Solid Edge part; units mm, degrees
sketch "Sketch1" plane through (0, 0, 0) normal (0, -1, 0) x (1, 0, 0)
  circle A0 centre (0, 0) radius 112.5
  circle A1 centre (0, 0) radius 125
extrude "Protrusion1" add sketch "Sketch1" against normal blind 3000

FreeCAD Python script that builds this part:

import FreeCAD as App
import Part
import Sketcher
from FreeCAD import Vector

doc = App.newDocument("Part")
body = doc.addObject("PartDesign::Body", "Body")

# Sketch on XZ plane
sketch1 = doc.addObject("Sketcher::SketchObject", "Sketch")
body.addObject(sketch1)
sketch1.AttachmentSupport = (doc.XZ_Plane, [""])
sketch1.MapMode = "FlatFace"
sketch1.addGeometry([
    Part.Circle(Vector(0, 0, 0), Vector(0, 0, 1), 125),
    Part.Circle(Vector(0, 0, 0), Vector(0, 0, 1), 112),
], False)
sketch1.addConstraint([
    Sketcher.Constraint("Coincident", 0, 3, -1, 1),
    Sketcher.Constraint("Coincident", 1, 3, -1, 1),
    Sketcher.Constraint("Diameter", 0, 250.0),
    Sketcher.Constraint("Diameter", 1, 225.0),
])
pad1 = doc.addObject("PartDesign::Pad", "Pad")
body.addObject(pad1)
pad1.Profile = sketch1
pad1.Length = 3000
pad1.Reversed = True

doc.recompute()
